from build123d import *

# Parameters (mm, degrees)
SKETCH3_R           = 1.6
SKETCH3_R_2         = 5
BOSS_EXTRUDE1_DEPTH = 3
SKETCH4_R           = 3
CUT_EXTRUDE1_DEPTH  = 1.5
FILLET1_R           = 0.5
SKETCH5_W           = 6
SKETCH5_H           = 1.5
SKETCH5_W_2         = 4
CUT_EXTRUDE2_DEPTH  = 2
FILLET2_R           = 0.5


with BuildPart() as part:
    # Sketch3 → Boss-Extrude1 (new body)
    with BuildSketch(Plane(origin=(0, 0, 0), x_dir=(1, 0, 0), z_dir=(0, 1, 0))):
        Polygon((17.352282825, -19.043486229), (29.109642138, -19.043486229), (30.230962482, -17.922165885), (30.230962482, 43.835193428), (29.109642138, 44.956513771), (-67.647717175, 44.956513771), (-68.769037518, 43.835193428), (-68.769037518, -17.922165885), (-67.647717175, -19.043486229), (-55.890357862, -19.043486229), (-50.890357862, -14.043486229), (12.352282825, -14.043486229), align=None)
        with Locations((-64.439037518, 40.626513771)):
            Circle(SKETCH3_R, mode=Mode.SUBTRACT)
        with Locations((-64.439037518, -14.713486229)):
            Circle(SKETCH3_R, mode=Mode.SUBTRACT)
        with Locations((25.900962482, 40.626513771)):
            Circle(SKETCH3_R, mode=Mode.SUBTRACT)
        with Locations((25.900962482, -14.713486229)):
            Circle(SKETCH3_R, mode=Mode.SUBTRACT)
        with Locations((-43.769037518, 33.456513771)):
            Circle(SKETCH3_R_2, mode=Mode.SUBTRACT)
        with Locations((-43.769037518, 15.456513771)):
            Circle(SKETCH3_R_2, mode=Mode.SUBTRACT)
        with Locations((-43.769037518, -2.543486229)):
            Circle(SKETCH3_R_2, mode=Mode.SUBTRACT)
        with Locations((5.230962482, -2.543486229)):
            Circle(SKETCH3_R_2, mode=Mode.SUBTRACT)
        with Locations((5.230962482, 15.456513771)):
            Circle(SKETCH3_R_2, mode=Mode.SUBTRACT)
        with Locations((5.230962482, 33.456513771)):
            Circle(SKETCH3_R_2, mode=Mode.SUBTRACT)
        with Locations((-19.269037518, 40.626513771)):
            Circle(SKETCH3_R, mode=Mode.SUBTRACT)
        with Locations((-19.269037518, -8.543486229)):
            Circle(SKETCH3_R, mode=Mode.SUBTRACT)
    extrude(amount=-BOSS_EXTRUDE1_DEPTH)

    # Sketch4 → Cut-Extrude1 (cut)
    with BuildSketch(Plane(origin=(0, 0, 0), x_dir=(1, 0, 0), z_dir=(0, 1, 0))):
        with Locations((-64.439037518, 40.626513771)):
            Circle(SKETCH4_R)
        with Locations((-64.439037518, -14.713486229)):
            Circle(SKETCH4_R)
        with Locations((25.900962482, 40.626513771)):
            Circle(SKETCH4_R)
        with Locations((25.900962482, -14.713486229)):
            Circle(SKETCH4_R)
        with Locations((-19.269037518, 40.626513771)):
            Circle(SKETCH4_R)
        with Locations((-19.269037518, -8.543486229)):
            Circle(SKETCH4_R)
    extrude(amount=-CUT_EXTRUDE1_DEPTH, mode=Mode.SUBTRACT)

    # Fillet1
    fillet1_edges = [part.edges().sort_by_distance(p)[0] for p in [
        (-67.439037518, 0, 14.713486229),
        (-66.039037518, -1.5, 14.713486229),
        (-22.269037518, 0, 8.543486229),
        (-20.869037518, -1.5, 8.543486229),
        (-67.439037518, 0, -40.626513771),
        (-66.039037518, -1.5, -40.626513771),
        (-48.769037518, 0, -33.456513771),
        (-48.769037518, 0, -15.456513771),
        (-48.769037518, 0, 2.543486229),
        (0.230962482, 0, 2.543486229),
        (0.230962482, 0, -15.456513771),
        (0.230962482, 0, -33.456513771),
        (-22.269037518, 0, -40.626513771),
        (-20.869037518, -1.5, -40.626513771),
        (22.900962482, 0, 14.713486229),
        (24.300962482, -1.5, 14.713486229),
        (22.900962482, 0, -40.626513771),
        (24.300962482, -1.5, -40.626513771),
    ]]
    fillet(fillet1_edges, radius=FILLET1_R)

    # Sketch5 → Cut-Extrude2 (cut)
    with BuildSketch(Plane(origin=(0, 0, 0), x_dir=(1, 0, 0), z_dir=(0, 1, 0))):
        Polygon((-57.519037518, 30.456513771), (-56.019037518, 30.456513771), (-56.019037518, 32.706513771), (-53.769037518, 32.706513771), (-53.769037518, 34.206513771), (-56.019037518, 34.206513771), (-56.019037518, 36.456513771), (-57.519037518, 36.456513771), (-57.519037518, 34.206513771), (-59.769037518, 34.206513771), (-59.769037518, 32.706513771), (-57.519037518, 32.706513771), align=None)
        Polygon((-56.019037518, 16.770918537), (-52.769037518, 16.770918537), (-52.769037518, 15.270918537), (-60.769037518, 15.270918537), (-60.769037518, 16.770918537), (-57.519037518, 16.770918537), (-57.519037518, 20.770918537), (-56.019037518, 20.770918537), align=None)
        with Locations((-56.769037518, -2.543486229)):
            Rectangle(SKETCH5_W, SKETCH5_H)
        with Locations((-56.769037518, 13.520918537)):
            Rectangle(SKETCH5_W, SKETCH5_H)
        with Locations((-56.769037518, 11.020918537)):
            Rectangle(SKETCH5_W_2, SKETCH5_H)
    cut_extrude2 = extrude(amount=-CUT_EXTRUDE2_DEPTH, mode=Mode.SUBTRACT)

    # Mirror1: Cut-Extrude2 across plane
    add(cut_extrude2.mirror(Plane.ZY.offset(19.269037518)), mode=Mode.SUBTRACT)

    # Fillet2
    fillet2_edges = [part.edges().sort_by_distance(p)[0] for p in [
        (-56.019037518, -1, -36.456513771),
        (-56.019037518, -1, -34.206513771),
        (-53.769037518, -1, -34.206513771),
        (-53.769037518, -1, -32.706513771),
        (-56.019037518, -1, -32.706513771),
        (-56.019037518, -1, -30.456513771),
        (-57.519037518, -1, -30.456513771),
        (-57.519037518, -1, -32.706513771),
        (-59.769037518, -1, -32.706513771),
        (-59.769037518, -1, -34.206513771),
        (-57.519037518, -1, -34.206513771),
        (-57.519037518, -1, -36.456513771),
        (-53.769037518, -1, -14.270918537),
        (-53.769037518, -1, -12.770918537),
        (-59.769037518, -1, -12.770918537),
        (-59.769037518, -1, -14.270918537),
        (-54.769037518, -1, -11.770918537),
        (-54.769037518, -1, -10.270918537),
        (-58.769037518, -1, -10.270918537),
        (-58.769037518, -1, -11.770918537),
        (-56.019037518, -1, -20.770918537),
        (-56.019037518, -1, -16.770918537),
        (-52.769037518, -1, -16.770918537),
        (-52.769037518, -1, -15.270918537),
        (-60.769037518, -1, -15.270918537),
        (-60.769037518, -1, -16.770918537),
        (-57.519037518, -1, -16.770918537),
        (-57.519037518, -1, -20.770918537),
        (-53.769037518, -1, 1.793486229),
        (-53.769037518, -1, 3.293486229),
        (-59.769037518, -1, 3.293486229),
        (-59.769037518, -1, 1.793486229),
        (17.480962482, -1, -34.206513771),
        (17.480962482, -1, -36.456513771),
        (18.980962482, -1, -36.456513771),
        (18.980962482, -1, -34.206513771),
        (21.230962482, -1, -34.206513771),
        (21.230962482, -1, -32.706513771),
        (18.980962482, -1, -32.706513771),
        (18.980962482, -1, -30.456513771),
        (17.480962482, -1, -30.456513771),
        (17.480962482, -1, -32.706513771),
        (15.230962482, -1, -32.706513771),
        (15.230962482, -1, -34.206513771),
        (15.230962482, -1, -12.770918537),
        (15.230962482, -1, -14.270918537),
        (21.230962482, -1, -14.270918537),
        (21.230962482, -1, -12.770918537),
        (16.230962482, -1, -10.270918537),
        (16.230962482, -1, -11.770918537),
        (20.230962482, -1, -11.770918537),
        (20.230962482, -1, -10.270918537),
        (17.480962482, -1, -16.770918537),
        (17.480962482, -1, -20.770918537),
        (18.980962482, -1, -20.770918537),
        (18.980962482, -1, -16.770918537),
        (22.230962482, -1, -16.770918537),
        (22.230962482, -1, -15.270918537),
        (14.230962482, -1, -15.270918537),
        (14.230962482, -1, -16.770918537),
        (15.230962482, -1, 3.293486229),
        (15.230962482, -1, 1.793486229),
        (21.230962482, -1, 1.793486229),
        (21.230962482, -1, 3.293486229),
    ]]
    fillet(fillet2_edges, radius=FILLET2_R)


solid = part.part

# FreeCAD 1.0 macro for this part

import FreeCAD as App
import Part
import Sketcher


def edges_at(feature, points):
    """Names of the edges that pass closest to the given points."""
    edges = feature.Shape.Edges
    near = lambda p: min(range(len(edges)), key=lambda i: edges[i].distToShape(Part.Vertex(*p))[0])
    return sorted({f"Edge{near(p) + 1}" for p in points})


def add_polygon(sketch, points):
    """Adds a closed chain of lines whose ends are joined by coincident constraints."""
    first, n = sketch.GeometryCount, len(points)
    for a, b in zip(points, points[1:] + points[:1]):
        sketch.addGeometry(Part.LineSegment(App.Vector(*a, 0), App.Vector(*b, 0)), False)
    for i in range(n):
        sketch.addConstraint(Sketcher.Constraint("Coincident", first + i, 2, first + (i + 1) % n, 1))

doc = App.newDocument("Part")
body = doc.addObject("PartDesign::Body", "Body")

# Sketch on XZ plane
sketch1 = doc.addObject("Sketcher::SketchObject", "Sketch")
body.addObject(sketch1)
sketch1.AttachmentSupport = (doc.XZ_Plane, [""])
sketch1.MapMode = "FlatFace"
add_polygon(sketch1, [(17.352283, 19.043486), (29.109642, 19.043486), (30.230962, 17.922166), (30.230962, -43.835193), (29.109642, -44.956514), (-67.647717, -44.956514), (-68.769038, -43.835193), (-68.769038, 17.922166), (-67.647717, 19.043486), (-55.890358, 19.043486), (-50.890358, 14.043486), (12.352283, 14.043486)])  # lines 0-11
sketch1.addGeometry(Part.Circle(App.Vector(-64.439038, 14.713486, 0), App.Vector(0, 0, 1), 1.6), False)  # 12
sketch1.addGeometry(Part.Circle(App.Vector(-43.769038, 2.543486, 0), App.Vector(0, 0, 1), 5), False)  # 13
sketch1.addGeometry(Part.Circle(App.Vector(-19.269038, 8.543486, 0), App.Vector(0, 0, 1), 1.6), False)  # 14
sketch1.addGeometry(Part.Circle(App.Vector(25.900962, 14.713486, 0), App.Vector(0, 0, 1), 1.6), False)  # 15
sketch1.addGeometry(Part.Circle(App.Vector(5.230962, 2.543486, 0), App.Vector(0, 0, 1), 5), False)  # 16
sketch1.addGeometry(Part.Circle(App.Vector(-43.769038, -15.456514, 0), App.Vector(0, 0, 1), 5), False)  # 17
sketch1.addGeometry(Part.Circle(App.Vector(-43.769038, -33.456514, 0), App.Vector(0, 0, 1), 5), False)  # 18
sketch1.addGeometry(Part.Circle(App.Vector(-64.439038, -40.626514, 0), App.Vector(0, 0, 1), 1.6), False)  # 19
sketch1.addGeometry(Part.Circle(App.Vector(5.230962, -15.456514, 0), App.Vector(0, 0, 1), 5), False)  # 20
sketch1.addGeometry(Part.Circle(App.Vector(-19.269038, -40.626514, 0), App.Vector(0, 0, 1), 1.6), False)  # 21
sketch1.addGeometry(Part.Circle(App.Vector(5.230962, -33.456514, 0), App.Vector(0, 0, 1), 5), False)  # 22
sketch1.addGeometry(Part.Circle(App.Vector(25.900962, -40.626514, 0), App.Vector(0, 0, 1), 1.6), False)  # 23
sketch1.addConstraint(Sketcher.Constraint("Horizontal", 0))
sketch1.addConstraint(Sketcher.Constraint("Vertical", 2))
sketch1.addConstraint(Sketcher.Constraint("Horizontal", 4))
sketch1.addConstraint(Sketcher.Constraint("Vertical", 6))
sketch1.addConstraint(Sketcher.Constraint("Horizontal", 8))
sketch1.addConstraint(Sketcher.Constraint("Horizontal", 10))
sketch1.addConstraint(Sketcher.Constraint("Equal", 12, 14))
sketch1.addConstraint(Sketcher.Constraint("Equal", 14, 15))
sketch1.addConstraint(Sketcher.Constraint("Equal", 13, 16))
sketch1.addConstraint(Sketcher.Constraint("Equal", 16, 17))
sketch1.addConstraint(Sketcher.Constraint("Equal", 17, 18))
sketch1.addConstraint(Sketcher.Constraint("Equal", 15, 19))
sketch1.addConstraint(Sketcher.Constraint("Equal", 18, 20))
sketch1.addConstraint(Sketcher.Constraint("Equal", 19, 21))
sketch1.addConstraint(Sketcher.Constraint("Equal", 20, 22))
sketch1.addConstraint(Sketcher.Constraint("Equal", 21, 23))
sketch1.addConstraint(Sketcher.Constraint("Perpendicular", 1, 3))
sketch1.addConstraint(Sketcher.Constraint("Perpendicular", 3, 5))
sketch1.addConstraint(Sketcher.Constraint("Perpendicular", 5, 7))
sketch1.addConstraint(Sketcher.Constraint("Perpendicular", 7, 9))
sketch1.addConstraint(Sketcher.Constraint("Perpendicular", 9, 11))
sketch1.addConstraint(Sketcher.Constraint("Horizontal", 12, 3, 15, 3))
sketch1.addConstraint(Sketcher.Constraint("Horizontal", 13, 3, 16, 3))
sketch1.addConstraint(Sketcher.Constraint("Horizontal", 17, 3, 20, 3))
sketch1.addConstraint(Sketcher.Constraint("Horizontal", 19, 3, 21, 3))
sketch1.addConstraint(Sketcher.Constraint("Horizontal", 18, 3, 22, 3))
sketch1.addConstraint(Sketcher.Constraint("Horizontal", 21, 3, 23, 3))
sketch1.addConstraint(Sketcher.Constraint("Horizontal", 2, 2, 5, 2))
sketch1.addConstraint(Sketcher.Constraint("Horizontal", 1, 2, 6, 2))
sketch1.addConstraint(Sketcher.Constraint("Horizontal", 0, 2, 7, 2))
sketch1.addConstraint(Sketcher.Constraint("Vertical", 13, 3, 17, 3))
sketch1.addConstraint(Sketcher.Constraint("Vertical", 17, 3, 18, 3))
sketch1.addConstraint(Sketcher.Constraint("Vertical", 12, 3, 19, 3))
sketch1.addConstraint(Sketcher.Constraint("Vertical", 16, 3, 20, 3))
sketch1.addConstraint(Sketcher.Constraint("Vertical", 14, 3, 21, 3))
sketch1.addConstraint(Sketcher.Constraint("Vertical", 20, 3, 22, 3))
sketch1.addConstraint(Sketcher.Constraint("Vertical", 15, 3, 23, 3))
sketch1.addConstraint(Sketcher.Constraint("Vertical", 0, 2, 3, 2))
sketch1.addConstraint(Sketcher.Constraint("Vertical", 4, 2, 7, 2))
sketch1.addConstraint(Sketcher.Constraint("Equal", 0, 8))
sketch1.addConstraint(Sketcher.Constraint("Diameter", 13, 10.0))
sketch1.addConstraint(Sketcher.Constraint("Diameter", 12, 3.2))
sketch1.addConstraint(Sketcher.Constraint("DistanceY", 13, 3, 14, 3, 6.0))
sketch1.addConstraint(Sketcher.Constraint("DistanceX", 13, 3, 16, 3, 49.0))
sketch1.addConstraint(Sketcher.Constraint("DistanceY", 17, 3, 13, 3, 18.0))
sketch1.addConstraint(Sketcher.Constraint("DistanceY", 18, 3, 17, 3, 18.0))
sketch1.addConstraint(Sketcher.Constraint("DistanceX", 16, 3, 1, 2, 25.0))
sketch1.addConstraint(Sketcher.Constraint("DistanceX", 5, 2, 18, 3, 25.0))
sketch1.addConstraint(Sketcher.Constraint("DistanceX", 8, 2, 9, 2, 5.0))
sketch1.addConstraint(Sketcher.Constraint("DistanceX", 13, 3, 14, 3, 24.5))
sketch1.addConstraint(Sketcher.Constraint("DistanceY", 16, 3, 0, 2, 16.5))
sketch1.addConstraint(Sketcher.Constraint("DistanceY", 3, 2, 22, 3, 11.5))
sketch1.addConstraint(Sketcher.Constraint("DistanceX", 12, 3, 13, 3, 20.67))
sketch1.addConstraint(Sketcher.Constraint("DistanceY", 13, 3, 12, 3, 12.17))
sketch1.addConstraint(Sketcher.Constraint("DistanceX", 14, 3, 15, 3, 45.17))
sketch1.addConstraint(Sketcher.Constraint("DistanceY", 19, 3, 18, 3, 7.17))
sketch1.addConstraint(Sketcher.Constraint("DistanceX", 0, 1, 0, 2, 11.757359))
sketch1.addConstraint(Sketcher.Constraint("DistanceX", 4, 2, 4, 1, 96.757359))
sketch1.addConstraint(Sketcher.Constraint("DistanceX", 12, 3, -1, 1, 64.439038))
sketch1.addConstraint(Sketcher.Constraint("DistanceY", -1, 1, 12, 3, 14.713486))
pad1 = doc.addObject("PartDesign::Pad", "Pad")
body.addObject(pad1)
pad1.Profile = sketch1
pad1.Length = 3

# Sketch on XZ plane
sketch2 = doc.addObject("Sketcher::SketchObject", "Sketch001")
body.addObject(sketch2)
sketch2.AttachmentSupport = (doc.XZ_Plane, [""])
sketch2.MapMode = "FlatFace"
sketch2.addGeometry(Part.Circle(App.Vector(-64.439038, -40.626514, 0), App.Vector(0, 0, 1), 3), False)
sketch2.addGeometry(Part.Circle(App.Vector(-64.439038, 14.713486, 0), App.Vector(0, 0, 1), 3), False)
sketch2.addGeometry(Part.Circle(App.Vector(25.900962, -40.626514, 0), App.Vector(0, 0, 1), 3), False)
sketch2.addGeometry(Part.Circle(App.Vector(25.900962, 14.713486, 0), App.Vector(0, 0, 1), 3), False)
sketch2.addGeometry(Part.Circle(App.Vector(-19.269038, -40.626514, 0), App.Vector(0, 0, 1), 3), False)
sketch2.addGeometry(Part.Circle(App.Vector(-19.269038, 8.543486, 0), App.Vector(0, 0, 1), 3), False)
sketch2.addConstraint(Sketcher.Constraint("Equal", 0, 1))
sketch2.addConstraint(Sketcher.Constraint("Equal", 1, 2))
sketch2.addConstraint(Sketcher.Constraint("Equal", 2, 3))
sketch2.addConstraint(Sketcher.Constraint("Equal", 3, 4))
sketch2.addConstraint(Sketcher.Constraint("Equal", 4, 5))
sketch2.addConstraint(Sketcher.Constraint("Horizontal", 0, 3, 2, 3))
sketch2.addConstraint(Sketcher.Constraint("Horizontal", 1, 3, 3, 3))
sketch2.addConstraint(Sketcher.Constraint("Horizontal", 2, 3, 4, 3))
sketch2.addConstraint(Sketcher.Constraint("Vertical", 0, 3, 1, 3))
sketch2.addConstraint(Sketcher.Constraint("Vertical", 2, 3, 3, 3))
sketch2.addConstraint(Sketcher.Constraint("Vertical", 4, 3, 5, 3))
sketch2.addConstraint(Sketcher.Constraint("Diameter", 0, 6.0))
sketch2.addConstraint(Sketcher.Constraint("DistanceY", 0, 3, 1, 3, 55.34))
sketch2.addConstraint(Sketcher.Constraint("DistanceX", 0, 3, 2, 3, 90.34))
sketch2.addConstraint(Sketcher.Constraint("DistanceX", 0, 3, 4, 3, 45.17))
sketch2.addConstraint(Sketcher.Constraint("DistanceY", 5, 3, 1, 3, 6.17))
sketch2.addConstraint(Sketcher.Constraint("DistanceX", 0, 3, -1, 1, 64.439038))
sketch2.addConstraint(Sketcher.Constraint("DistanceY", 0, 3, -1, 1, 40.626514))
pocket1 = doc.addObject("PartDesign::Pocket", "Pocket")
body.addObject(pocket1)
pocket1.Profile = sketch2
pocket1.Length = 1.5
pocket1.Reversed = True
doc.recompute()

fillet = doc.addObject("PartDesign::Fillet", "Fillet")
body.addObject(fillet)
fillet.Base = (pocket1, edges_at(pocket1, [
    (-67.439, 0, 14.713),
    (-66.039, -1.5, 14.713),
    (-22.269, 0, 8.543),
    (-20.869, -1.5, 8.543),
    (-67.439, 0, -40.627),
    (-66.039, -1.5, -40.627),
    (-48.769, 0, -33.457),
    (-48.769, 0, -15.457),
    (-48.769, 0, 2.543),
    (0.231, 0, 2.543),
    (0.231, 0, -15.457),
    (0.231, 0, -33.457),
    (-22.269, 0, -40.627),
    (-20.869, -1.5, -40.627),
    (22.901, 0, 14.713),
    (24.301, -1.5, 14.713),
    (22.901, 0, -40.627),
    (24.301, -1.5, -40.627),
]))
fillet.Radius = 0.5

# Sketch on XZ plane
sketch3 = doc.addObject("Sketcher::SketchObject", "Sketch002")
body.addObject(sketch3)
sketch3.AttachmentSupport = (doc.XZ_Plane, [""])
sketch3.MapMode = "FlatFace"
add_polygon(sketch3, [(-57.519038, -30.456514), (-56.019038, -30.456514), (-56.019038, -32.706514), (-53.769038, -32.706514), (-53.769038, -34.206514), (-56.019038, -34.206514), (-56.019038, -36.456514), (-57.519038, -36.456514), (-57.519038, -34.206514), (-59.769038, -34.206514), (-59.769038, -32.706514), (-57.519038, -32.706514)])  # lines 0-11
add_polygon(sketch3, [(-52.769038, -16.770919), (-56.019038, -16.770919), (-56.019038, -20.770919), (-57.519038, -20.770919), (-57.519038, -16.770919), (-60.769038, -16.770919), (-60.769038, -15.270919), (-52.769038, -15.270919)])  # lines 12-19
add_polygon(sketch3, [(-59.769038, 1.793486), (-59.769038, 3.293486), (-53.769038, 3.293486), (-53.769038, 1.793486)])  # lines 20-23
add_polygon(sketch3, [(-59.769038, -14.270919), (-59.769038, -12.770919), (-53.769038, -12.770919), (-53.769038, -14.270919)])  # lines 24-27
add_polygon(sketch3, [(-58.769038, -11.770919), (-58.769038, -10.270919), (-54.769038, -10.270919), (-54.769038, -11.770919)])  # lines 28-31
sketch3.addConstraint(Sketcher.Constraint("Horizontal", 0))
sketch3.addConstraint(Sketcher.Constraint("Vertical", 1))
sketch3.addConstraint(Sketcher.Constraint("Horizontal", 2))
sketch3.addConstraint(Sketcher.Constraint("Vertical", 3))
sketch3.addConstraint(Sketcher.Constraint("Horizontal", 4))
sketch3.addConstraint(Sketcher.Constraint("Vertical", 5))
sketch3.addConstraint(Sketcher.Constraint("Horizontal", 6))
sketch3.addConstraint(Sketcher.Constraint("Vertical", 7))
sketch3.addConstraint(Sketcher.Constraint("Horizontal", 8))
sketch3.addConstraint(Sketcher.Constraint("Vertical", 9))
sketch3.addConstraint(Sketcher.Constraint("Horizontal", 10))
sketch3.addConstraint(Sketcher.Constraint("Vertical", 11))
sketch3.addConstraint(Sketcher.Constraint("Horizontal", 12))
sketch3.addConstraint(Sketcher.Constraint("Vertical", 13))
sketch3.addConstraint(Sketcher.Constraint("Horizontal", 14))
sketch3.addConstraint(Sketcher.Constraint("Vertical", 15))
sketch3.addConstraint(Sketcher.Constraint("Horizontal", 16))
sketch3.addConstraint(Sketcher.Constraint("Vertical", 17))
sketch3.addConstraint(Sketcher.Constraint("Horizontal", 18))
sketch3.addConstraint(Sketcher.Constraint("Vertical", 19))
sketch3.addConstraint(Sketcher.Constraint("Vertical", 20))
sketch3.addConstraint(Sketcher.Constraint("Horizontal", 21))
sketch3.addConstraint(Sketcher.Constraint("Vertical", 22))
sketch3.addConstraint(Sketcher.Constraint("Horizontal", 23))
sketch3.addConstraint(Sketcher.Constraint("Vertical", 24))
sketch3.addConstraint(Sketcher.Constraint("Horizontal", 25))
sketch3.addConstraint(Sketcher.Constraint("Vertical", 26))
sketch3.addConstraint(Sketcher.Constraint("Horizontal", 27))
sketch3.addConstraint(Sketcher.Constraint("Vertical", 28))
sketch3.addConstraint(Sketcher.Constraint("Horizontal", 29))
sketch3.addConstraint(Sketcher.Constraint("Vertical", 30))
sketch3.addConstraint(Sketcher.Constraint("Horizontal", 31))
sketch3.addConstraint(Sketcher.Constraint("Horizontal", 4, 2, 7, 2))
sketch3.addConstraint(Sketcher.Constraint("Horizontal", 2, 2, 9, 2))
sketch3.addConstraint(Sketcher.Constraint("Horizontal", 12, 2, 15, 2))
sketch3.addConstraint(Sketcher.Constraint("Vertical", 1, 2, 4, 2))
sketch3.addConstraint(Sketcher.Constraint("Vertical", 7, 2, 10, 2))
sketch3.addConstraint(Sketcher.Constraint("Vertical", 5, 2, 12, 2))
sketch3.addConstraint(Sketcher.Constraint("Vertical", 11, 2, 14, 2))
sketch3.addConstraint(Sketcher.Constraint("Vertical", 9, 2, 20, 2))
sketch3.addConstraint(Sketcher.Constraint("Vertical", 3, 2, 21, 2))
sketch3.addConstraint(Sketcher.Constraint("Vertical", 23, 2, 24, 2))
sketch3.addConstraint(Sketcher.Constraint("Vertical", 22, 2, 25, 2))
sketch3.addConstraint(Sketcher.Constraint("Equal", 4, 8))
sketch3.addConstraint(Sketcher.Constraint("Equal", 12, 16))
sketch3.addConstraint(Sketcher.Constraint("Equal", 10, 1))
sketch3.addConstraint(Sketcher.Constraint("Equal", 14, 3))
sketch3.addConstraint(Sketcher.Constraint("Equal", 1, 5))
sketch3.addConstraint(Sketcher.Constraint("Equal", 31, 13))
sketch3.addConstraint(Sketcher.Constraint("Equal", 9, 17))
sketch3.addConstraint(Sketcher.Constraint("Equal", 19, 20))
sketch3.addConstraint(Sketcher.Constraint("Equal", 22, 24))
sketch3.addConstraint(Sketcher.Constraint("Equal", 26, 28))
sketch3.addConstraint(Sketcher.Constraint("DistanceX", 18, 1, 18, 2, 8.0))
sketch3.addConstraint(Sketcher.Constraint("DistanceX", 21, 1, 21, 2, 6.0))
sketch3.addConstraint(Sketcher.Constraint("DistanceX", 29, 1, 29, 2, 4.0))
sketch3.addConstraint(Sketcher.Constraint("DistanceX", 0, 1, 0, 2, 1.5))
sketch3.addConstraint(Sketcher.Constraint("DistanceY", 16, 2, 24, 2, 4.0))
sketch3.addConstraint(Sketcher.Constraint("DistanceX", 24, 2, 28, 2, 1.0))
sketch3.addConstraint(Sketcher.Constraint("DistanceY", 27, 2, 28, 2, 4.0))
sketch3.addConstraint(Sketcher.Constraint("DistanceY", 12, 2, -1, 1, 16.770919))
sketch3.addConstraint(Sketcher.Constraint("DistanceX", 0, 2, -1, 1, 56.019038))
sketch3.addConstraint(Sketcher.Constraint("DistanceY", 0, 2, -1, 1, 30.456514))
sketch3.addConstraint(Sketcher.Constraint("DistanceY", -1, 1, 20, 2, 3.293486))
pocket2 = doc.addObject("PartDesign::Pocket", "Pocket001")
body.addObject(pocket2)
pocket2.Profile = sketch3
pocket2.Length = 2
pocket2.Reversed = True
doc.recompute()

datumplane = doc.addObject("PartDesign::Plane", "DatumPlane")
body.addObject(datumplane)
datumplane.AttachmentSupport = (doc.YZ_Plane, [""])
datumplane.MapMode = "FlatFace"
datumplane.AttachmentOffset = App.Placement(App.Vector(0, 0, -19.269038), App.Rotation())
mirrored = doc.addObject("PartDesign::Mirrored", "Mirrored")
body.addObject(mirrored)
mirrored.Originals = [pocket2]
mirrored.MirrorPlane = (datumplane, [""])
body.Tip = mirrored
doc.recompute()

fillet2 = doc.addObject("PartDesign::Fillet", "Fillet001")
body.addObject(fillet2)
fillet2.Base = (mirrored, edges_at(mirrored, [
    (-56.019, -1, -36.457),
    (-56.019, -1, -34.207),
    (-53.769, -1, -34.207),
    (-53.769, -1, -32.707),
    (-56.019, -1, -32.707),
    (-56.019, -1, -30.457),
    (-57.519, -1, -30.457),
    (-57.519, -1, -32.707),
    (-59.769, -1, -32.707),
    (-59.769, -1, -34.207),
    (-57.519, -1, -34.207),
    (-57.519, -1, -36.457),
    (-53.769, -1, -14.271),
    (-53.769, -1, -12.771),
    (-59.769, -1, -12.771),
    (-59.769, -1, -14.271),
    (-54.769, -1, -11.771),
    (-54.769, -1, -10.271),
    (-58.769, -1, -10.271),
    (-58.769, -1, -11.771),
    (-56.019, -1, -20.771),
    (-56.019, -1, -16.771),
    (-52.769, -1, -16.771),
    (-52.769, -1, -15.271),
    (-60.769, -1, -15.271),
    (-60.769, -1, -16.771),
    (-57.519, -1, -16.771),
    (-57.519, -1, -20.771),
    (-53.769, -1, 1.793),
    (-53.769, -1, 3.293),
    (-59.769, -1, 3.293),
    (-59.769, -1, 1.793),
    (17.481, -1, -34.207),
    (17.481, -1, -36.457),
    (18.981, -1, -36.457),
    (18.981, -1, -34.207),
    (21.231, -1, -34.207),
    (21.231, -1, -32.707),
    (18.981, -1, -32.707),
    (18.981, -1, -30.457),
    (17.481, -1, -30.457),
    (17.481, -1, -32.707),
    (15.231, -1, -32.707),
    (15.231, -1, -34.207),
    (15.231, -1, -12.771),
    (15.231, -1, -14.271),
    (21.231, -1, -14.271),
    (21.231, -1, -12.771),
    (16.231, -1, -10.271),
    (16.231, -1, -11.771),
    (20.231, -1, -11.771),
    (20.231, -1, -10.271),
    (17.481, -1, -16.771),
    (17.481, -1, -20.771),
    (18.981, -1, -20.771),
    (18.981, -1, -16.771),
    (22.231, -1, -16.771),
    (22.231, -1, -15.271),
    (14.231, -1, -15.271),
    (14.231, -1, -16.771),
    (15.231, -1, 3.293),
    (15.231, -1, 1.793),
    (21.231, -1, 1.793),
    (21.231, -1, 3.293),
]))
fillet2.Radius = 0.5

doc.recompute()
